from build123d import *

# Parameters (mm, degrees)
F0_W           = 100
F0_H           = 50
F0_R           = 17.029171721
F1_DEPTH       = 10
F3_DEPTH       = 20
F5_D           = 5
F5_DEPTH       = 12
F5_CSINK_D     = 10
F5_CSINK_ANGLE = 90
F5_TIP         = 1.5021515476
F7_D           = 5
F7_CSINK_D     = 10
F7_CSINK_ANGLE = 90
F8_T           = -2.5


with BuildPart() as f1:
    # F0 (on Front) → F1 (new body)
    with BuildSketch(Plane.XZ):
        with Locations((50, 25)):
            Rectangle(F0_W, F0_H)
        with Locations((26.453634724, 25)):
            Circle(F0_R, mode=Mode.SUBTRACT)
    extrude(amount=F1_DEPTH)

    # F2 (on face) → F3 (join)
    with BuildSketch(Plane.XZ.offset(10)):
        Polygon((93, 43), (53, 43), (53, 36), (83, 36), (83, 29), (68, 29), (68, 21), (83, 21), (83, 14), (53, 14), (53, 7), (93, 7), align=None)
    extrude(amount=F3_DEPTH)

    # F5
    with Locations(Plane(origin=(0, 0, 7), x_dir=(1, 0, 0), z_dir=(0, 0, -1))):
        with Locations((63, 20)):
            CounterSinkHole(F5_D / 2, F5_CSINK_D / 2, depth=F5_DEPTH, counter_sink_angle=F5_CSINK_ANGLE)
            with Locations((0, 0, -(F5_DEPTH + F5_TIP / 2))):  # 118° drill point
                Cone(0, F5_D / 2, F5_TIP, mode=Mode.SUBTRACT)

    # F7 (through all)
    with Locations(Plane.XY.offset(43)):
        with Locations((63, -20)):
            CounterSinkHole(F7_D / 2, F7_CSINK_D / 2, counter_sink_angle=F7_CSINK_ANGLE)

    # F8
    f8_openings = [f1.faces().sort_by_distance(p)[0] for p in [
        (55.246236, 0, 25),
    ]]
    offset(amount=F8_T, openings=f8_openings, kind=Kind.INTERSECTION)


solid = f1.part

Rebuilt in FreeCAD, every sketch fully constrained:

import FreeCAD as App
import Part
import Sketcher

V = App.Vector


def faces_at(feature, points):
    """Names of the faces that lie closest to the given points."""
    faces = feature.Shape.Faces
    near = lambda p: min(range(len(faces)), key=lambda i: faces[i].distToShape(Part.Vertex(*p))[0])
    return sorted({f"Face{near(p) + 1}" for p in points})

doc = App.newDocument("Part")
body = doc.addObject("PartDesign::Body", "Body")

sketch1 = doc.addObject("Sketcher::SketchObject", "Sketch")
body.addObject(sketch1)
sketch1.AttachmentSupport = (doc.XZ_Plane, [""])
sketch1.MapMode = "FlatFace"
sketch1.addGeometry([
    Part.LineSegment(V(0, 50, 0), V(0, 0, 0)),
    Part.LineSegment(V(0, 0, 0), V(100, 0, 0)),
    Part.LineSegment(V(100, 0, 0), V(100, 50, 0)),
    Part.LineSegment(V(100, 50, 0), V(0, 50, 0)),
    Part.Circle(V(26, 25, 0), V(0, 0, 1), 17),
], False)
sketch1.addConstraint([
    Sketcher.Constraint("Coincident", 0, 2, 1, 1),
    Sketcher.Constraint("Coincident", 1, 2, 2, 1),
    Sketcher.Constraint("Coincident", 2, 2, 3, 1),
    Sketcher.Constraint("Coincident", 3, 2, 0, 1),
    Sketcher.Constraint("Vertical", 0),
    Sketcher.Constraint("Horizontal", 1),
    Sketcher.Constraint("Vertical", 2),
    Sketcher.Constraint("Horizontal", 3),
    Sketcher.Constraint("Coincident", 0, 2, -1, 1),
    Sketcher.Constraint("DistanceX", 1, 1, 1, 2, 100.0),
    Sketcher.Constraint("DistanceY", 0, 2, 0, 1, 50.0),
    Sketcher.Constraint("DistanceY", -1, 1, 4, 3, 25.0),
    Sketcher.Constraint("Diameter", 4, 34.058343),
    Sketcher.Constraint("DistanceX", -1, 1, 4, 3, 26.453635),
])
pad1 = doc.addObject("PartDesign::Pad", "Pad")
body.addObject(pad1)
pad1.Profile = sketch1
pad1.Length = 10

sketch2 = doc.addObject("Sketcher::SketchObject", "Sketch001")
body.addObject(sketch2)
sketch2.AttachmentSupport = (doc.XZ_Plane, [""])
sketch2.MapMode = "FlatFace"
sketch2.AttachmentOffset = App.Placement(V(0, 0, 10), App.Rotation())
sketch2.addGeometry([
    Part.LineSegment(V(93, 43, 0), V(53, 43, 0)),
    Part.LineSegment(V(53, 43, 0), V(53, 36, 0)),
    Part.LineSegment(V(53, 36, 0), V(83, 36, 0)),
    Part.LineSegment(V(83, 36, 0), V(83, 29, 0)),
    Part.LineSegment(V(83, 29, 0), V(68, 29, 0)),
    Part.LineSegment(V(68, 29, 0), V(68, 21, 0)),
    Part.LineSegment(V(68, 21, 0), V(83, 21, 0)),
    Part.LineSegment(V(83, 21, 0), V(83, 14, 0)),
    Part.LineSegment(V(83, 14, 0), V(53, 14, 0)),
    Part.LineSegment(V(53, 14, 0), V(53, 7, 0)),
    Part.LineSegment(V(53, 7, 0), V(93, 7, 0)),
    Part.LineSegment(V(93, 7, 0), V(93, 43, 0)),
], False)
sketch2.addConstraint([
    Sketcher.Constraint("Coincident", 0, 2, 1, 1),
    Sketcher.Constraint("Coincident", 1, 2, 2, 1),
    Sketcher.Constraint("Coincident", 2, 2, 3, 1),
    Sketcher.Constraint("Coincident", 3, 2, 4, 1),
    Sketcher.Constraint("Coincident", 4, 2, 5, 1),
    Sketcher.Constraint("Coincident", 5, 2, 6, 1),
    Sketcher.Constraint("Coincident", 6, 2, 7, 1),
    Sketcher.Constraint("Coincident", 7, 2, 8, 1),
    Sketcher.Constraint("Coincident", 8, 2, 9, 1),
    Sketcher.Constraint("Coincident", 9, 2, 10, 1),
    Sketcher.Constraint("Coincident", 10, 2, 11, 1),
    Sketcher.Constraint("Coincident", 11, 2, 0, 1),
    Sketcher.Constraint("Horizontal", 0),
    Sketcher.Constraint("Vertical", 1),
    Sketcher.Constraint("Horizontal", 2),
    Sketcher.Constraint("Vertical", 3),
    Sketcher.Constraint("Horizontal", 4),
    Sketcher.Constraint("Vertical", 5),
    Sketcher.Constraint("Horizontal", 6),
    Sketcher.Constraint("Vertical", 7),
    Sketcher.Constraint("Horizontal", 8),
    Sketcher.Constraint("Vertical", 9),
    Sketcher.Constraint("Horizontal", 10),
    Sketcher.Constraint("Vertical", 11),
    Sketcher.Constraint("Vertical", 3, 2, 6, 2),
    Sketcher.Constraint("Vertical", 1, 2, 8, 2),
    Sketcher.Constraint("Equal", 1, 3),
    Sketcher.Constraint("Equal", 3, 7),
    Sketcher.Constraint("Equal", 7, 9),
    Sketcher.Constraint("DistanceX", 0, 2, 0, 1, 40.0),
    Sketcher.Constraint("DistanceX", 2, 1, 2, 2, 30.0),
    Sketcher.Constraint("DistanceX", 4, 2, 4, 1, 15.0),
    Sketcher.Constraint("DistanceY", 1, 2, 1, 1, 7.0),
    Sketcher.Constraint("DistanceY", 5, 2, 5, 1, 8.0),
    Sketcher.Constraint("DistanceX", -1, 1, 0, 2, 53.0),
    Sketcher.Constraint("DistanceY", -1, 1, 0, 2, 43.0),
])
pad2 = doc.addObject("PartDesign::Pad", "Pad001")
body.addObject(pad2)
pad2.Profile = sketch2
pad2.Length = 20

sketch3 = doc.addObject("Sketcher::SketchObject", "Sketch002")
body.addObject(sketch3)
sketch3.AttachmentSupport = (doc.XY_Plane, [""])
sketch3.MapMode = "FlatFace"
sketch3.AttachmentOffset = App.Placement(V(0, 0, 7), App.Rotation())
sketch3.addGeometry(Part.Circle(V(63, -20, 0), V(0, 0, 1), 2.5), False)
sketch3.addConstraint([
    Sketcher.Constraint("Diameter", 0, 5.0),
    Sketcher.Constraint("DistanceX", -1, 1, 0, 3, 63.0),
    Sketcher.Constraint("DistanceY", 0, 3, -1, 1, 20.0),
])
doc.recompute()
hole = doc.addObject("PartDesign::Hole", "Hole")
body.addObject(hole)
hole.Profile = sketch3
hole.ThreadType = "None"
hole.Diameter = 5
hole.DepthType = "Dimension"
hole.Depth = 12
hole.DrillPoint = "Angled"
hole.DrillPointAngle = 118
hole.HoleCutType = "Countersink"
hole.HoleCutDiameter = 10
hole.HoleCutCountersinkAngle = 90
hole.Reversed = True

sketch4 = doc.addObject("Sketcher::SketchObject", "Sketch003")
body.addObject(sketch4)
sketch4.AttachmentSupport = (doc.XY_Plane, [""])
sketch4.MapMode = "FlatFace"
sketch4.AttachmentOffset = App.Placement(V(0, 0, 43), App.Rotation())
sketch4.addGeometry(Part.Circle(V(63, -20, 0), V(0, 0, 1), 2.5), False)
sketch4.addConstraint([
    Sketcher.Constraint("Diameter", 0, 5.0),
    Sketcher.Constraint("DistanceX", -1, 1, 0, 3, 63.0),
    Sketcher.Constraint("DistanceY", 0, 3, -1, 1, 20.0),
])
doc.recompute()
hole2 = doc.addObject("PartDesign::Hole", "Hole001")
body.addObject(hole2)
hole2.Profile = sketch4
hole2.ThreadType = "None"
hole2.Diameter = 5
hole2.DepthType = "ThroughAll"
hole2.HoleCutType = "Countersink"
hole2.HoleCutDiameter = 10
hole2.HoleCutCountersinkAngle = 90
doc.recompute()

thickness = doc.addObject("PartDesign::Thickness", "Thickness")
body.addObject(thickness)
thickness.Base = (hole2, faces_at(hole2, [(50, 0, 25)]))
thickness.Value = 2.5
thickness.Reversed = True
thickness.Join = "Intersection"

doc.recompute()
